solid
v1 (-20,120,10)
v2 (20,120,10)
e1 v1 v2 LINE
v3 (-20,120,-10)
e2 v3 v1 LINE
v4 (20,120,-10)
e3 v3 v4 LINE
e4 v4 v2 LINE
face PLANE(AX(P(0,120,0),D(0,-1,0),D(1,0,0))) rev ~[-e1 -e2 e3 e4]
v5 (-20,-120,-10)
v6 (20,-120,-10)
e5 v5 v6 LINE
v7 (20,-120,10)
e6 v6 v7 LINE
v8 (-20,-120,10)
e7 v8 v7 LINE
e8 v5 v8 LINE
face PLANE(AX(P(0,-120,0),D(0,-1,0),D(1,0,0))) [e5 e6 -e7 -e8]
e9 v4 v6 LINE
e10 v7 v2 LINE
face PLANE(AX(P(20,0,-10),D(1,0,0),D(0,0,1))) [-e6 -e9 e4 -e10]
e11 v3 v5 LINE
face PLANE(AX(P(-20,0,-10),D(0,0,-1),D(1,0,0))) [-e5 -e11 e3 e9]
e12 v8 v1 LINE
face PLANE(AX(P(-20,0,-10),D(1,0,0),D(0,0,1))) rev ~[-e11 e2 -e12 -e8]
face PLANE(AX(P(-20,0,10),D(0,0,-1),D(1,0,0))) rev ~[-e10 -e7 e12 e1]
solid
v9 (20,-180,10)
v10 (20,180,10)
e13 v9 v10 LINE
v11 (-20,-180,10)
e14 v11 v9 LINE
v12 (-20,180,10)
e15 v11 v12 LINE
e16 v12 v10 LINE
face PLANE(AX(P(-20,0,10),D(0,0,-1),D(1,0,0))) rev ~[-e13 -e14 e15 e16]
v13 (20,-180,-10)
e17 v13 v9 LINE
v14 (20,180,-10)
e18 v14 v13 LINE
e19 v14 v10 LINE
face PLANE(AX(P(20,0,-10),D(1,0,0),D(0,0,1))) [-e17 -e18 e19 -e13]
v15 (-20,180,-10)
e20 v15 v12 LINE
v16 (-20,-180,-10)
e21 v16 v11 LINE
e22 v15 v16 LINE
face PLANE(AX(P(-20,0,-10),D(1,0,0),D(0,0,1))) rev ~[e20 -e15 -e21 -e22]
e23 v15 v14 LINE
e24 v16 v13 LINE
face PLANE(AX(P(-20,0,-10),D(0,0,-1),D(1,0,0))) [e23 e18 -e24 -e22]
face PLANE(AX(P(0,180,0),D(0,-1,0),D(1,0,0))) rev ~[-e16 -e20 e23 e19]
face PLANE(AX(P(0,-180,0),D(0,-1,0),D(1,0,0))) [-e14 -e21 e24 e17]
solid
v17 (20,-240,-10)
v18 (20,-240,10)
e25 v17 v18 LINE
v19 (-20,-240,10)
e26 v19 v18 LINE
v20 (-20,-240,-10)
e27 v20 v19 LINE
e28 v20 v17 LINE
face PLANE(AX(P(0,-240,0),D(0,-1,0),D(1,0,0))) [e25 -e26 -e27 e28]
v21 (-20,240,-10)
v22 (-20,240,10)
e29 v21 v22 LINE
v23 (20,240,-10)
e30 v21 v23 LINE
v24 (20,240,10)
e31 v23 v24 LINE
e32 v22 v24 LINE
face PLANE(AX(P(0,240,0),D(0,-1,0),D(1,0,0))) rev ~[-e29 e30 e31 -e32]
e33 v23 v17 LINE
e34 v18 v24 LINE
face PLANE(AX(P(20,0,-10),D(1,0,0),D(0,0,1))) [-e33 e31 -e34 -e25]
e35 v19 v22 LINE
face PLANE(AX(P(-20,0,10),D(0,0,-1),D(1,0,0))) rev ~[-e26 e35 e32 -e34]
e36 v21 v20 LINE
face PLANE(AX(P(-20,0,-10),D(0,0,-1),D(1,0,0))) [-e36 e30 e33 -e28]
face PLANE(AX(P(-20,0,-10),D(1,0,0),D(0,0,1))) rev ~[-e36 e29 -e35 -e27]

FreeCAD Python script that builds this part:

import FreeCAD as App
import Part
import Sketcher
from FreeCAD import Vector
Q = App.Units.Quantity

doc = App.newDocument("Part")
body = doc.addObject("PartDesign::Body", "Body")

# Sketch on XZ plane
sketch1 = doc.addObject("Sketcher::SketchObject", "Sketch")
body.addObject(sketch1)
sketch1.AttachmentSupport = (doc.XZ_Plane, [""])
sketch1.MapMode = "FlatFace"
sketch1.addGeometry([
    Part.LineSegment(Vector(-20, 10, 0), Vector(-20, -10, 0)),
    Part.LineSegment(Vector(-20, -10, 0), Vector(20, -10, 0)),
    Part.LineSegment(Vector(20, -10, 0), Vector(20, 10, 0)),
    Part.LineSegment(Vector(20, 10, 0), Vector(-20, 10, 0)),
], False)
sketch1.addConstraint([
    Sketcher.Constraint("Coincident", 0, 2, 1, 1),
    Sketcher.Constraint("Coincident", 1, 2, 2, 1),
    Sketcher.Constraint("Coincident", 2, 2, 3, 1),
    Sketcher.Constraint("Coincident", 3, 2, 0, 1),
    Sketcher.Constraint("Vertical", 0),
    Sketcher.Constraint("Horizontal", 1),
    Sketcher.Constraint("Vertical", 2),
    Sketcher.Constraint("Horizontal", 3),
    Sketcher.Constraint("Symmetric", 0, 2, 2, 2, -1, 1),
    Sketcher.Constraint("DistanceX", 1, 1, 1, 2, Q("40 mm")),
    Sketcher.Constraint("DistanceY", 0, 2, 0, 1, Q("20 mm")),
])
pad1 = doc.addObject("PartDesign::Pad", "Pad")
body.addObject(pad1)
pad1.Profile = sketch1
pad1.Length = 480
pad1.Midplane = True
body2 = doc.addObject("PartDesign::Body", "Body001")

# Sketch on XZ plane
sketch2 = doc.addObject("Sketcher::SketchObject", "Sketch001")
body2.addObject(sketch2)
sketch2.AttachmentSupport = (doc.getObject("XZ_Plane001"), [""])
sketch2.MapMode = "FlatFace"
sketch2.addGeometry([
    Part.LineSegment(Vector(-20, 10, 0), Vector(-20, -10, 0)),
    Part.LineSegment(Vector(-20, -10, 0), Vector(20, -10, 0)),
    Part.LineSegment(Vector(20, -10, 0), Vector(20, 10, 0)),
    Part.LineSegment(Vector(20, 10, 0), Vector(-20, 10, 0)),
], False)
sketch2.addConstraint([
    Sketcher.Constraint("Coincident", 0, 2, 1, 1),
    Sketcher.Constraint("Coincident", 1, 2, 2, 1),
    Sketcher.Constraint("Coincident", 2, 2, 3, 1),
    Sketcher.Constraint("Coincident", 3, 2, 0, 1),
    Sketcher.Constraint("Vertical", 0),
    Sketcher.Constraint("Horizontal", 1),
    Sketcher.Constraint("Vertical", 2),
    Sketcher.Constraint("Horizontal", 3),
    Sketcher.Constraint("Symmetric", 0, 2, 2, 2, -1, 1),
    Sketcher.Constraint("DistanceX", 1, 1, 1, 2, Q("40 mm")),
    Sketcher.Constraint("DistanceY", 0, 2, 0, 1, Q("20 mm")),
])
pad2 = doc.addObject("PartDesign::Pad", "Pad001")
body2.addObject(pad2)
pad2.Profile = sketch2
pad2.Length = 360
pad2.Midplane = True
body3 = doc.addObject("PartDesign::Body", "Body002")

# Sketch on XZ plane
sketch3 = doc.addObject("Sketcher::SketchObject", "Sketch002")
body3.addObject(sketch3)
sketch3.AttachmentSupport = (doc.getObject("XZ_Plane002"), [""])
sketch3.MapMode = "FlatFace"
sketch3.addGeometry([
    Part.LineSegment(Vector(-20, 10, 0), Vector(-20, -10, 0)),
    Part.LineSegment(Vector(-20, -10, 0), Vector(20, -10, 0)),
    Part.LineSegment(Vector(20, -10, 0), Vector(20, 10, 0)),
    Part.LineSegment(Vector(20, 10, 0), Vector(-20, 10, 0)),
], False)
sketch3.addConstraint([
    Sketcher.Constraint("Coincident", 0, 2, 1, 1),
    Sketcher.Constraint("Coincident", 1, 2, 2, 1),
    Sketcher.Constraint("Coincident", 2, 2, 3, 1),
    Sketcher.Constraint("Coincident", 3, 2, 0, 1),
    Sketcher.Constraint("Vertical", 0),
    Sketcher.Constraint("Horizontal", 1),
    Sketcher.Constraint("Vertical", 2),
    Sketcher.Constraint("Horizontal", 3),
    Sketcher.Constraint("Symmetric", 0, 2, 2, 2, -1, 1),
    Sketcher.Constraint("DistanceX", 1, 1, 1, 2, Q("40 mm")),
    Sketcher.Constraint("DistanceY", 0, 2, 0, 1, Q("20 mm")),
])
pad3 = doc.addObject("PartDesign::Pad", "Pad002")
body3.addObject(pad3)
pad3.Profile = sketch3
pad3.Length = 240
pad3.Midplane = True

doc.recompute()
